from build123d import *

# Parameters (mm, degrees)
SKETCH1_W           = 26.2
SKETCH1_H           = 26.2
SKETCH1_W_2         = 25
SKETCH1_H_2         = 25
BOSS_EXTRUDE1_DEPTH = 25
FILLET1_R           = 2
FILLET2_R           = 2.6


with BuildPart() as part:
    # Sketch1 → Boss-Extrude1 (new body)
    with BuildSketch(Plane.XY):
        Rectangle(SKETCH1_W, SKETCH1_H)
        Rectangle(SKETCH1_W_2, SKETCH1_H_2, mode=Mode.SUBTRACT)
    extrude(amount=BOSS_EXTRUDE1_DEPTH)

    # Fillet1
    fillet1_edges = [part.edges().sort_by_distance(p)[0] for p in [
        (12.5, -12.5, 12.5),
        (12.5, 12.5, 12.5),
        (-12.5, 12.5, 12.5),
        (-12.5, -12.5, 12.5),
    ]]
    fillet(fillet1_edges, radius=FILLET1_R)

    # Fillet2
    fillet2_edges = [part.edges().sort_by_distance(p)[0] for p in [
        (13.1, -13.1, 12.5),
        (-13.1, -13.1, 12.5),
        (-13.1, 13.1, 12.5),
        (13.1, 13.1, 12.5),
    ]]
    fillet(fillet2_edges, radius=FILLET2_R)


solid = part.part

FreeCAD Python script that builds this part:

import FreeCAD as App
import Part
import Sketcher
from FreeCAD import Vector


def edges_at(feature, points):
    """Names of the edges that pass closest to the given points."""
    edges = feature.Shape.Edges
    near = lambda p: min(range(len(edges)), key=lambda i: edges[i].distToShape(Part.Vertex(*p))[0])
    return sorted({f"Edge{near(p) + 1}" for p in points})

doc = App.newDocument("Part")
params = doc.addObject("Spreadsheet::Sheet", "Params")
for row, (alias, value) in enumerate([
    ("sketch1_width", "25 mm"),
    ("sketch1_width2", "26.2 mm"),
    ("pad1_length", "25 mm"),
    ("fillet_radius", "2 mm"),
    ("fillet2_radius", "2.6 mm"),
], start=1):
    params.set(f"A{row}", alias)
    params.set(f"B{row}", "=" + value)
    params.setAlias(f"B{row}", alias)

body = doc.addObject("PartDesign::Body", "Body")

sketch1 = body.newObject("Sketcher::SketchObject", "Sketch")
sketch1.AttachmentSupport = (doc.getObject("XY_Plane"), [""])
sketch1.MapMode = "FlatFace"
sketch1.addGeometry([
    Part.LineSegment(Vector(-13, 13, 0), Vector(-13, -13, 0)),
    Part.LineSegment(Vector(-13, -13, 0), Vector(13, -13, 0)),
    Part.LineSegment(Vector(13, -13, 0), Vector(13, 13, 0)),
    Part.LineSegment(Vector(13, 13, 0), Vector(-13, 13, 0)),
    Part.LineSegment(Vector(12, -12, 0), Vector(-12, -12, 0)),
    Part.LineSegment(Vector(-12, -12, 0), Vector(-12, 12, 0)),
    Part.LineSegment(Vector(-12, 12, 0), Vector(12, 12, 0)),
    Part.LineSegment(Vector(12, 12, 0), Vector(12, -12, 0)),
], False)
sketch1.addConstraint([
    Sketcher.Constraint("Coincident", 0, 2, 1, 1),
    Sketcher.Constraint("Coincident", 1, 2, 2, 1),
    Sketcher.Constraint("Coincident", 2, 2, 3, 1),
    Sketcher.Constraint("Coincident", 3, 2, 0, 1),
    Sketcher.Constraint("Coincident", 4, 2, 5, 1),
    Sketcher.Constraint("Coincident", 5, 2, 6, 1),
    Sketcher.Constraint("Coincident", 6, 2, 7, 1),
    Sketcher.Constraint("Coincident", 7, 2, 4, 1),
    Sketcher.Constraint("Vertical", 0),
    Sketcher.Constraint("Horizontal", 1),
    Sketcher.Constraint("Vertical", 2),
    Sketcher.Constraint("Horizontal", 3),
    Sketcher.Constraint("Horizontal", 4),
    Sketcher.Constraint("Vertical", 5),
    Sketcher.Constraint("Horizontal", 6),
    Sketcher.Constraint("Vertical", 7),
    Sketcher.Constraint("Symmetric", 0, 2, 2, 2, -1, 1),
    Sketcher.Constraint("Symmetric", 4, 2, 6, 2, -1, 1),
    Sketcher.Constraint("Equal", 3, 0),
    Sketcher.Constraint("Equal", 6, 5),
    Sketcher.Constraint("DistanceX", 4, 2, 4, 1, 25.0),
    Sketcher.Constraint("DistanceX", 1, 1, 1, 2, 26.2),
])
sketch1.setExpression("Constraints[20]", "Params.sketch1_width")
sketch1.setExpression("Constraints[21]", "Params.sketch1_width2")
pad1 = body.newObject("PartDesign::Pad", "Pad")
pad1.Profile = sketch1
pad1.setExpression("Length", "Params.pad1_length")
doc.recompute()

fillet = body.newObject("PartDesign::Fillet", "Fillet")
fillet.Base = (pad1, edges_at(pad1, [
    (12.5, -12.5, 12.5),
    (12.5, 12.5, 12.5),
    (-12.5, 12.5, 12.5),
    (-12.5, -12.5, 12.5),
]))
fillet.setExpression("Radius", "Params.fillet_radius")
doc.recompute()

fillet2 = body.newObject("PartDesign::Fillet", "Fillet001")
fillet2.Base = (fillet, edges_at(fillet, [
    (13.1, -13.1, 12.5),
    (-13.1, -13.1, 12.5),
    (-13.1, 13.1, 12.5),
    (13.1, 13.1, 12.5),
]))
fillet2.setExpression("Radius", "Params.fillet2_radius")

doc.recompute()
